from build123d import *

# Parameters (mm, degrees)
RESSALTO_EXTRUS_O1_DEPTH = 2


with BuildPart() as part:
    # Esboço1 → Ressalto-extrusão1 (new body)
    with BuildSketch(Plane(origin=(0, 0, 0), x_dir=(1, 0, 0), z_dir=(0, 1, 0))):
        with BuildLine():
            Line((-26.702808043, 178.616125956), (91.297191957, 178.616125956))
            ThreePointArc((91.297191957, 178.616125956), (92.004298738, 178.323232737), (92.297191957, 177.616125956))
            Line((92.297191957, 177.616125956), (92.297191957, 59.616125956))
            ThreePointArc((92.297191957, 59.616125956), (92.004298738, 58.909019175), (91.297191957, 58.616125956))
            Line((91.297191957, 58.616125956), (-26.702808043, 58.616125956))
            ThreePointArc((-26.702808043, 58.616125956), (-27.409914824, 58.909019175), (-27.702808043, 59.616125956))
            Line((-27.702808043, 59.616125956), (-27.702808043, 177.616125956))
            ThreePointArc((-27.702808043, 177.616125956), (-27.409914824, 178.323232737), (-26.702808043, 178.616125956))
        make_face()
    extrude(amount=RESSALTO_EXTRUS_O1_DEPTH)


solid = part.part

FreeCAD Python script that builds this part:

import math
import FreeCAD as App
import Part
import Sketcher
Q = App.Units.Quantity

doc = App.newDocument("Part")
params = doc.addObject("Spreadsheet::Sheet", "Params")
for row, (alias, value) in enumerate([
    ("sketch1_radius", "1 mm"),
    ("sketch1_width", "118 mm"),
    ("pad1_length", "2 mm"),
], start=1):
    params.set(f"A{row}", alias)
    params.set(f"B{row}", "=" + value)
    params.setAlias(f"B{row}", alias)

body = doc.addObject("PartDesign::Body", "Body")

sketch1 = body.newObject("Sketcher::SketchObject", "Sketch")
sketch1.AttachmentSupport = (doc.getObject("XZ_Plane"), [""])
sketch1.MapMode = "FlatFace"
sketch1.addGeometry(Part.LineSegment(App.Vector(91.3, -178.6, 0), App.Vector(-26.7, -178.6, 0)), False)
sketch1.addGeometry(Part.ArcOfCircle(Part.Circle(App.Vector(-26.7, -177.6, 0), App.Vector(0, 0, 1), 1), math.radians(-180), math.radians(-90)), False)
sketch1.addGeometry(Part.LineSegment(App.Vector(-27.7, -177.6, 0), App.Vector(-27.7, -59.6, 0)), False)
sketch1.addGeometry(Part.ArcOfCircle(Part.Circle(App.Vector(-26.7, -59.6, 0), App.Vector(0, 0, 1), 1), math.radians(90), math.radians(180)), False)
sketch1.addGeometry(Part.LineSegment(App.Vector(-26.7, -58.6, 0), App.Vector(91.3, -58.6, 0)), False)
sketch1.addGeometry(Part.ArcOfCircle(Part.Circle(App.Vector(91.3, -59.6, 0), App.Vector(0, 0, 1), 1), math.radians(0), math.radians(90)), False)
sketch1.addGeometry(Part.LineSegment(App.Vector(92.3, -59.6, 0), App.Vector(92.3, -177.6, 0)), False)
sketch1.addGeometry(Part.ArcOfCircle(Part.Circle(App.Vector(91.3, -177.6, 0), App.Vector(0, 0, 1), 1), math.radians(-90), math.radians(0)), False)
sketch1.addConstraint(Sketcher.Constraint("Tangent", 0, 2, 1, 2))
sketch1.addConstraint(Sketcher.Constraint("Tangent", 1, 1, 2, 1))
sketch1.addConstraint(Sketcher.Constraint("Tangent", 2, 2, 3, 2))
sketch1.addConstraint(Sketcher.Constraint("Tangent", 3, 1, 4, 1))
sketch1.addConstraint(Sketcher.Constraint("Tangent", 4, 2, 5, 2))
sketch1.addConstraint(Sketcher.Constraint("Tangent", 5, 1, 6, 1))
sketch1.addConstraint(Sketcher.Constraint("Tangent", 6, 2, 7, 2))
sketch1.addConstraint(Sketcher.Constraint("Tangent", 7, 1, 0, 1))
sketch1.addConstraint(Sketcher.Constraint("Horizontal", 0))
sketch1.addConstraint(Sketcher.Constraint("Vertical", 2))
sketch1.addConstraint(Sketcher.Constraint("Horizontal", 4))
sketch1.addConstraint(Sketcher.Constraint("Vertical", 6))
sketch1.addConstraint(Sketcher.Constraint("Equal", 1, 3))
sketch1.addConstraint(Sketcher.Constraint("Equal", 3, 5))
sketch1.addConstraint(Sketcher.Constraint("Equal", 5, 7))
sketch1.addConstraint(Sketcher.Constraint("Equal", 4, 2))
sketch1.addConstraint(Sketcher.Constraint("Radius", 1, Q("1 mm")))
sketch1.addConstraint(Sketcher.Constraint("DistanceX", 0, 2, 0, 1, Q("118 mm")))
sketch1.addConstraint(Sketcher.Constraint("DistanceX", 1, 3, -1, 1, Q("26.702808 mm")))
sketch1.addConstraint(Sketcher.Constraint("DistanceY", 1, 3, -1, 1, Q("177.616126 mm")))
sketch1.setExpression("Constraints[16]", "Params.sketch1_radius")
sketch1.setExpression("Constraints[17]", "Params.sketch1_width")
pad1 = body.newObject("PartDesign::Pad", "Pad")
pad1.Profile = sketch1
pad1.setExpression("Length", "Params.pad1_length")
pad1.Reversed = True

doc.recompute()
